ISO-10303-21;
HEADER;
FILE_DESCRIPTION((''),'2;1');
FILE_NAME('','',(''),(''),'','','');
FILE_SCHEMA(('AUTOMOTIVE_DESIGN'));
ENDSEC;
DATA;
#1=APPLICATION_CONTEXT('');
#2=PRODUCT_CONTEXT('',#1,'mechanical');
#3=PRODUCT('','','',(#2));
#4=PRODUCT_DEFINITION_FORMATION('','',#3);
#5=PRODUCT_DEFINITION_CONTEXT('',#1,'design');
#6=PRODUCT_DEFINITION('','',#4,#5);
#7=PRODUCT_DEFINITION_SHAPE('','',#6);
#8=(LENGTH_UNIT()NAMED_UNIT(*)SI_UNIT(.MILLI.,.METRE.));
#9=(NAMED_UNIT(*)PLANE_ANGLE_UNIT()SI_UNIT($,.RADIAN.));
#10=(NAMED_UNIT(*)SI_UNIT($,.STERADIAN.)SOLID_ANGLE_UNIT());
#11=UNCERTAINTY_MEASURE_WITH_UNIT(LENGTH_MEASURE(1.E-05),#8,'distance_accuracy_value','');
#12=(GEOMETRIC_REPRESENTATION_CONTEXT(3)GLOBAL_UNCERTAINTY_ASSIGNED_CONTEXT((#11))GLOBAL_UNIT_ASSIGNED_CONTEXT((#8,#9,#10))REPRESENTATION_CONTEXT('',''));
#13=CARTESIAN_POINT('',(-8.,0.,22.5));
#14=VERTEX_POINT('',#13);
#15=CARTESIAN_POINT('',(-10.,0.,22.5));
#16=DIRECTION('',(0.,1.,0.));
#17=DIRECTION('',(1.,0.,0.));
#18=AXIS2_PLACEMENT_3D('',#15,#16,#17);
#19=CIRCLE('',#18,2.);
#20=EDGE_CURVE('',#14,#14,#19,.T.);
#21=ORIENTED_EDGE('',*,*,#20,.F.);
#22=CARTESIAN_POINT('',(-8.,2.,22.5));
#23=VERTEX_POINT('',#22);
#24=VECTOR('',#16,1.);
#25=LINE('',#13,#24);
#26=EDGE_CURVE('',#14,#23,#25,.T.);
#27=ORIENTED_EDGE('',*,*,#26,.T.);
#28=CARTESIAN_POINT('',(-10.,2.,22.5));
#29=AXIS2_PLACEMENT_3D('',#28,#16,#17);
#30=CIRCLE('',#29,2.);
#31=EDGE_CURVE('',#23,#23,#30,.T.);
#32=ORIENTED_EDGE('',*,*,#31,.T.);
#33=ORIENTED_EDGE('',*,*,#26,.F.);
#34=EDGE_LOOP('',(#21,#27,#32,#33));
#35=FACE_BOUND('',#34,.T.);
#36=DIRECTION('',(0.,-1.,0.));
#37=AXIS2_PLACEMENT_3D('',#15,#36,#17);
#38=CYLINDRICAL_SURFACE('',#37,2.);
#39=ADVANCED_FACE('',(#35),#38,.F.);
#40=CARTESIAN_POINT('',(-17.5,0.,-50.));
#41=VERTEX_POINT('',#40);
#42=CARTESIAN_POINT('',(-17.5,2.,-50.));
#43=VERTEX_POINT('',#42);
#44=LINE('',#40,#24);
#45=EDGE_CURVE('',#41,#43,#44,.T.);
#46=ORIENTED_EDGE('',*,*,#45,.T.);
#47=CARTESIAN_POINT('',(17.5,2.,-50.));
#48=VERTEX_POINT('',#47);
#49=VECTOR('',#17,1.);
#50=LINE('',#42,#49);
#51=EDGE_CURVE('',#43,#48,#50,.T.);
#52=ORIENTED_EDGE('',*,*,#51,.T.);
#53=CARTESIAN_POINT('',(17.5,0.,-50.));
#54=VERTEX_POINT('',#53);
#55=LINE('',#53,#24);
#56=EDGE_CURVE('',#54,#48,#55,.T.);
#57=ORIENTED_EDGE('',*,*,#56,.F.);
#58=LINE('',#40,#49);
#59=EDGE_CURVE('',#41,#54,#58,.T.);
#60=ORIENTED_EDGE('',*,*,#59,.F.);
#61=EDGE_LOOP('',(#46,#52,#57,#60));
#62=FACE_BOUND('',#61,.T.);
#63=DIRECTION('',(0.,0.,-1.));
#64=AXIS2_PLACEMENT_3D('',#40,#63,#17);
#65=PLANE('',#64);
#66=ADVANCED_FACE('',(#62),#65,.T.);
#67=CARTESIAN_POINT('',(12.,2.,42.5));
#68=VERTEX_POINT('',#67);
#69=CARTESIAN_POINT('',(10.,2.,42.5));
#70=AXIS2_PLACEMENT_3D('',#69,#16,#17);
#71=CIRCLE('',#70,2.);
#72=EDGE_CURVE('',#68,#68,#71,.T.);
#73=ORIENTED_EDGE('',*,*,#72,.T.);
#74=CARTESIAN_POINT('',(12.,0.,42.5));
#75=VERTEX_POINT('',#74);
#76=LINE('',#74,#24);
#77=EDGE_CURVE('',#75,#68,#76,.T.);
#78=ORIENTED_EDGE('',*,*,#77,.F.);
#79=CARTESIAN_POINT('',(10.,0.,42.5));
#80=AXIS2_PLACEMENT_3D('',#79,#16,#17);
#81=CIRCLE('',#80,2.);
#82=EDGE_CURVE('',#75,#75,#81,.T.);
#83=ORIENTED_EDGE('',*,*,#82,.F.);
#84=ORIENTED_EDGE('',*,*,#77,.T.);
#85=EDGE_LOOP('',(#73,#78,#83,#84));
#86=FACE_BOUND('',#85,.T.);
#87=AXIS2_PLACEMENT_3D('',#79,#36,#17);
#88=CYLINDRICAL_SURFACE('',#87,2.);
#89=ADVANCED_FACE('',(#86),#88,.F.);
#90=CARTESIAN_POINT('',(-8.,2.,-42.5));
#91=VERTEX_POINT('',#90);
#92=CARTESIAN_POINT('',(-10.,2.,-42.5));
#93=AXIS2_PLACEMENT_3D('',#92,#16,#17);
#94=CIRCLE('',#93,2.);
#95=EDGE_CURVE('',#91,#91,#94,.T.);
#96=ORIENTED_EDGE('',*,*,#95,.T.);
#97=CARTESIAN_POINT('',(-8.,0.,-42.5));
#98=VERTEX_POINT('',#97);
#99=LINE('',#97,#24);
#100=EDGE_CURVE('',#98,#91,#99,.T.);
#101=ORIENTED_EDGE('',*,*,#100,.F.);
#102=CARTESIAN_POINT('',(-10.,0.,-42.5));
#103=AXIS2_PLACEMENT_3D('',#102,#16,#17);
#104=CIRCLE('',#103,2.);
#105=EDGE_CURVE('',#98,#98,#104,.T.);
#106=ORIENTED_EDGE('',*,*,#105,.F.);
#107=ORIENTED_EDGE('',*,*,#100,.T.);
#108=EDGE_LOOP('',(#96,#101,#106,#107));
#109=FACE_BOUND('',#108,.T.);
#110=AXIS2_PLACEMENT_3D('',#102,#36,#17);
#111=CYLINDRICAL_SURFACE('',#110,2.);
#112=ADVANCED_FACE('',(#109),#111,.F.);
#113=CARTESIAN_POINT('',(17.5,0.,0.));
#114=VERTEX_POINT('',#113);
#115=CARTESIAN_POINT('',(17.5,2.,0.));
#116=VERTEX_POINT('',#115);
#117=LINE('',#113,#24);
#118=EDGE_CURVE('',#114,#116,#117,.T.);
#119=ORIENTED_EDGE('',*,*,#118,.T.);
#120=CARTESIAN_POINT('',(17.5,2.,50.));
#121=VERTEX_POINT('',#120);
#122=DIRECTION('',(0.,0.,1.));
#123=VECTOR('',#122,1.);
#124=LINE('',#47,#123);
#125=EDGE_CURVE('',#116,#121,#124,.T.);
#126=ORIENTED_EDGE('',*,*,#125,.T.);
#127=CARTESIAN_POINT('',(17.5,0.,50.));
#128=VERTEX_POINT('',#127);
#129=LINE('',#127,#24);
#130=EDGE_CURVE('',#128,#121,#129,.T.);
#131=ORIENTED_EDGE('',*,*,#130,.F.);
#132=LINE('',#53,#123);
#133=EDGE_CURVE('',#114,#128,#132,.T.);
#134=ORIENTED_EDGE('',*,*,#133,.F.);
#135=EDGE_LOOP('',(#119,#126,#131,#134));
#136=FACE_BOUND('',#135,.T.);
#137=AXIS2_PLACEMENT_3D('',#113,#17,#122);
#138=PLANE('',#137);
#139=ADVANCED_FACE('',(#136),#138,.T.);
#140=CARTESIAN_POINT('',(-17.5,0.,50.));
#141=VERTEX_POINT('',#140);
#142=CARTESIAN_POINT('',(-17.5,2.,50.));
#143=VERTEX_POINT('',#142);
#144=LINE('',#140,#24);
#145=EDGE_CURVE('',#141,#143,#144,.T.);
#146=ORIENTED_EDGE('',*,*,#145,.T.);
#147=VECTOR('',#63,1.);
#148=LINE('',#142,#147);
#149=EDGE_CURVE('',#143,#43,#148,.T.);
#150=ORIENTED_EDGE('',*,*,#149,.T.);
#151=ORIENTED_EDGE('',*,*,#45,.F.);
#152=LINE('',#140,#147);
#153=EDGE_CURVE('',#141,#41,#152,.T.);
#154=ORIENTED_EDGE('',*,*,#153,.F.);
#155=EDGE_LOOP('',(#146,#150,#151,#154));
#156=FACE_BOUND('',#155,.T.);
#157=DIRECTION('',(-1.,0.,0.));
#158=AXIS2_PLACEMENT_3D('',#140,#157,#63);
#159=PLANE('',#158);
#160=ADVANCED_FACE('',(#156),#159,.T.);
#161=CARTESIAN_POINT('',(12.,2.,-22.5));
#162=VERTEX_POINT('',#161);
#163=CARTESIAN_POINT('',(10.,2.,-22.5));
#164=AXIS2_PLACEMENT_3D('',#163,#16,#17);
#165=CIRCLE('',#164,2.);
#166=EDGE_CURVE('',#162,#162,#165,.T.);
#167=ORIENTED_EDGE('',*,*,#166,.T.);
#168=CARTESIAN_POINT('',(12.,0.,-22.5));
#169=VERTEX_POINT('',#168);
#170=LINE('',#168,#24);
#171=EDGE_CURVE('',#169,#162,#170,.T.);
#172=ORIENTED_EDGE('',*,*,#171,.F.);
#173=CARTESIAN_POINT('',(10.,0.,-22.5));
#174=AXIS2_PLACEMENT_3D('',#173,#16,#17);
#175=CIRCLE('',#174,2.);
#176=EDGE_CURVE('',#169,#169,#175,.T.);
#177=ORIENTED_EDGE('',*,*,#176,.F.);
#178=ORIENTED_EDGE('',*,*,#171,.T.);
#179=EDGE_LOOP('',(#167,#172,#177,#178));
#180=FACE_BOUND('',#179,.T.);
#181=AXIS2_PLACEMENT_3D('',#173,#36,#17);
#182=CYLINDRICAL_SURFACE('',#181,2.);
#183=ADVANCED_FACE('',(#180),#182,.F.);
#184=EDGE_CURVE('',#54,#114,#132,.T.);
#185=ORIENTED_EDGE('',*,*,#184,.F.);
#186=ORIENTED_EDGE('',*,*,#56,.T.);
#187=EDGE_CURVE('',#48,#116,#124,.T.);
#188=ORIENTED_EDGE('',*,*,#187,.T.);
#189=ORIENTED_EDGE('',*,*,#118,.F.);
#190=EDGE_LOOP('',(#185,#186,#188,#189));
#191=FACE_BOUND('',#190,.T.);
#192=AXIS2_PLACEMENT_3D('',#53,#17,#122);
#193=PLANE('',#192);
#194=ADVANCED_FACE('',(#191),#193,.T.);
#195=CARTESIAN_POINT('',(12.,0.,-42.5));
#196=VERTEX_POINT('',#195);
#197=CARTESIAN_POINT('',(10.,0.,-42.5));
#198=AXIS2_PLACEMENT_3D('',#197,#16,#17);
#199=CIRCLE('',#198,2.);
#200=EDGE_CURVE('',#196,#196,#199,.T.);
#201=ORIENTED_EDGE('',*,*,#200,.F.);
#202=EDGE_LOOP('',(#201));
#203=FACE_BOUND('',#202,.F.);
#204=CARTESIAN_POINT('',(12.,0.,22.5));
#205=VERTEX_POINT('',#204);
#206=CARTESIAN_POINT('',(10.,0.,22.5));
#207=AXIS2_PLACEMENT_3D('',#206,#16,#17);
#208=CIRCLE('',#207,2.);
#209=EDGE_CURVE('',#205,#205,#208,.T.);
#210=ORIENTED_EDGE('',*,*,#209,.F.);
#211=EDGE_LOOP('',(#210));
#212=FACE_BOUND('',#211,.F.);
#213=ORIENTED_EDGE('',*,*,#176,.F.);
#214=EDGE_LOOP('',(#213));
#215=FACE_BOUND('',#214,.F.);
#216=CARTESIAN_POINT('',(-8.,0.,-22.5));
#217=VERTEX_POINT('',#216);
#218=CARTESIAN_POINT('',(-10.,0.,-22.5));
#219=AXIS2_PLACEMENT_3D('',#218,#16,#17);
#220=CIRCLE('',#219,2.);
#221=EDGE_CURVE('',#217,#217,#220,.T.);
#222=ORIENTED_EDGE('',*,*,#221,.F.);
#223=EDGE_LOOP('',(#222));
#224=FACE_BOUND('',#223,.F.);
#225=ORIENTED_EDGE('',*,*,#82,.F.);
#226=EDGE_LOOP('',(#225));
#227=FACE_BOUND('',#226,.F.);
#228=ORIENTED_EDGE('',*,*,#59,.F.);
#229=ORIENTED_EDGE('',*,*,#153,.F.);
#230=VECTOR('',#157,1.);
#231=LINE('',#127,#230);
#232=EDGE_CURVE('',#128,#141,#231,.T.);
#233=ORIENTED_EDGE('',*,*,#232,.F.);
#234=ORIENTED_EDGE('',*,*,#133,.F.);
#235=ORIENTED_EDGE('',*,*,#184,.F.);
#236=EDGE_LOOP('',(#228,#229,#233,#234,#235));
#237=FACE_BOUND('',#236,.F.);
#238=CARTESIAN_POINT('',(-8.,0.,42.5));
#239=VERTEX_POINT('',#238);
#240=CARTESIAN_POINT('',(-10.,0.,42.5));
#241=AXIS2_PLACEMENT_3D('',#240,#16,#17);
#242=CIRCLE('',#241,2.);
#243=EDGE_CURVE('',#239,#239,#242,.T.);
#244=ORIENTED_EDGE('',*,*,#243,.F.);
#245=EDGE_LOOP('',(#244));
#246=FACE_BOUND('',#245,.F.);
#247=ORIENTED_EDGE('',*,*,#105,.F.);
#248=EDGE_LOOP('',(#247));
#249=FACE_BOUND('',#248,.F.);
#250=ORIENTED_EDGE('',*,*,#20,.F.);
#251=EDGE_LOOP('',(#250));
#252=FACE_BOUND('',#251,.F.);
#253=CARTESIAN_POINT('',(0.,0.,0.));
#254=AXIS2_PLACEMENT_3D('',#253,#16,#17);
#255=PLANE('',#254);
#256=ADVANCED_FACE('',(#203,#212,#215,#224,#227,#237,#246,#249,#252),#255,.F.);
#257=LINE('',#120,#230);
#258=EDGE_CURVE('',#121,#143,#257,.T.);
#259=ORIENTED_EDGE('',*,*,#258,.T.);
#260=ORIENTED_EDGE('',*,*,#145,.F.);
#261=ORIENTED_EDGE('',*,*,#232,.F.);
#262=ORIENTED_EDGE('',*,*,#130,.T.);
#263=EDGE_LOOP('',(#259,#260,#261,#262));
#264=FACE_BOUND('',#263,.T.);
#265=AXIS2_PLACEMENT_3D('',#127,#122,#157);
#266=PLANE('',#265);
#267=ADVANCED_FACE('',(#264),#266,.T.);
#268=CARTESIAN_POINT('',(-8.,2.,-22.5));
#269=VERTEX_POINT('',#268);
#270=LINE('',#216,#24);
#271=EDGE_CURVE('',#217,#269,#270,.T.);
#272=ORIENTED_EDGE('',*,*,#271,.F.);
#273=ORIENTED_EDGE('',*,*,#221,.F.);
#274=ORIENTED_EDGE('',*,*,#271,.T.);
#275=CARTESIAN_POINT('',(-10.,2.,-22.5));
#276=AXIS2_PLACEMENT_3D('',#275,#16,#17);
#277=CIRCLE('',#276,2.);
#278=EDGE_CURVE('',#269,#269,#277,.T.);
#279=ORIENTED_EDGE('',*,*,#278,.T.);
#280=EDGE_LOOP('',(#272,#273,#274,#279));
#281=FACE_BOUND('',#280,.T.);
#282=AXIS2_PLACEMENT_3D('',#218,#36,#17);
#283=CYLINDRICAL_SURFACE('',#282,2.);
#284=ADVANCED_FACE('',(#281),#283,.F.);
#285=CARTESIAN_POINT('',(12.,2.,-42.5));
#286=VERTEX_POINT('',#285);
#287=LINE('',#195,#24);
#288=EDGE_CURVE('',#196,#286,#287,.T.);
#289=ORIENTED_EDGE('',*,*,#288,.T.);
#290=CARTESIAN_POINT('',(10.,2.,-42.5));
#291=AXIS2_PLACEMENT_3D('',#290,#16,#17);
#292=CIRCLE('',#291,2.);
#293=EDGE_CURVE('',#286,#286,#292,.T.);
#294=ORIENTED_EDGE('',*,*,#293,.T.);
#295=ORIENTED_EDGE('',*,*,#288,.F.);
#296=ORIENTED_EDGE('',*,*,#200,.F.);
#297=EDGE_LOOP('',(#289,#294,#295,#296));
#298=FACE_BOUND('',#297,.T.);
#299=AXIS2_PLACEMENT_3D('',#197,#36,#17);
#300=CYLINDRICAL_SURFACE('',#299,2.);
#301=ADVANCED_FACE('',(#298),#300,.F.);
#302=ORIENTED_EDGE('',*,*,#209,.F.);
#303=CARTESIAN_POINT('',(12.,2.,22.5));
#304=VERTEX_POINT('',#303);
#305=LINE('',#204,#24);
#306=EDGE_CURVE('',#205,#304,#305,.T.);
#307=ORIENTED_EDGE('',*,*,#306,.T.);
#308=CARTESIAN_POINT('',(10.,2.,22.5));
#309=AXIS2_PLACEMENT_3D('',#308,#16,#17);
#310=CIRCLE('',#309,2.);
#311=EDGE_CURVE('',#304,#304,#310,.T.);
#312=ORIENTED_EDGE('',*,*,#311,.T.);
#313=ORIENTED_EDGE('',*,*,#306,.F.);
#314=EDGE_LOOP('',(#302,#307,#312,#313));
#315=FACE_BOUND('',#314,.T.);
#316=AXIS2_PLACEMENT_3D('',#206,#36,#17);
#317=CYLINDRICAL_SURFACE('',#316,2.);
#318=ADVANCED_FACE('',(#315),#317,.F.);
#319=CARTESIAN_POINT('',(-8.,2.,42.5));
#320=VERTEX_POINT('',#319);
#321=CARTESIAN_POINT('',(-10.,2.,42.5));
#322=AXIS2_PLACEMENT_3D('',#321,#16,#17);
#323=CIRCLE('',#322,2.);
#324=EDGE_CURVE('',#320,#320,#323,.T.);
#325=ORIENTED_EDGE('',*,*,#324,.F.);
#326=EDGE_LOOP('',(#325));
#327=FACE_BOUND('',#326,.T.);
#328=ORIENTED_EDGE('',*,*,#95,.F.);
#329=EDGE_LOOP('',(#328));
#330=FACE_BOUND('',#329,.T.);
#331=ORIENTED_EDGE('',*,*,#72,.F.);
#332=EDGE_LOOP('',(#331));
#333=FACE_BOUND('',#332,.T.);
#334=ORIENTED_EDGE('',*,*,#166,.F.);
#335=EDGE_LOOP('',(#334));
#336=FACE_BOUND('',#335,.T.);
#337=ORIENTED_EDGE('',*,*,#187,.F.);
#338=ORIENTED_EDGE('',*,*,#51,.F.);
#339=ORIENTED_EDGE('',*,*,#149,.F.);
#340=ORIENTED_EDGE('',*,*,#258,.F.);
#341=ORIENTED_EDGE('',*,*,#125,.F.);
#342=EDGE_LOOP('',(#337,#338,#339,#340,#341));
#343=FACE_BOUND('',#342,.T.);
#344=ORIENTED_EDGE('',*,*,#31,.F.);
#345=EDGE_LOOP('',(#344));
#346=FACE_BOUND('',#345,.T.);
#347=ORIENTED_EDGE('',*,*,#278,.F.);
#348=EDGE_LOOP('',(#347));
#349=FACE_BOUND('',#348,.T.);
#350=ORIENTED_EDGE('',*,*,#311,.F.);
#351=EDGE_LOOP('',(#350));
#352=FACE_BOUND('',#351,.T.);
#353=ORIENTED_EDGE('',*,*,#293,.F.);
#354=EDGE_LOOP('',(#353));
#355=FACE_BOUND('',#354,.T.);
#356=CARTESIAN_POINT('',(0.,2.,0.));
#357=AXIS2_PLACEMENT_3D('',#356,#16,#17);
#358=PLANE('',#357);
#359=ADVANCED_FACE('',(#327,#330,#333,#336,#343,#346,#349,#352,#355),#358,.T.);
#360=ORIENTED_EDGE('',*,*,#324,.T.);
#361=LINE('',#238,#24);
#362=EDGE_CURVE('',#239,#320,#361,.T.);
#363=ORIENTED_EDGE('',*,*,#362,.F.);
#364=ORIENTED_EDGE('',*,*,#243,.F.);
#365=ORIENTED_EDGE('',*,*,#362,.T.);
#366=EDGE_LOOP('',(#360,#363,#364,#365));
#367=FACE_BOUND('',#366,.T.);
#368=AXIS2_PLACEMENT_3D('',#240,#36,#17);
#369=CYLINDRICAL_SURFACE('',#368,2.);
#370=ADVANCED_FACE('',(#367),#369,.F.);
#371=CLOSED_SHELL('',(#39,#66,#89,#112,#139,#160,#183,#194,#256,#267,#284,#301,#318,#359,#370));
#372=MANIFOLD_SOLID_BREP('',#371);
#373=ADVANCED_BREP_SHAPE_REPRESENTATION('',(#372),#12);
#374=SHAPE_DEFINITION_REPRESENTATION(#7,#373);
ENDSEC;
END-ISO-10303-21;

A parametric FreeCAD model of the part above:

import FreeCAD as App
import Part
import Sketcher


def add_polygon(sketch, points):
    """Adds a closed chain of lines whose ends are joined by coincident constraints."""
    first, n = sketch.GeometryCount, len(points)
    for a, b in zip(points, points[1:] + points[:1]):
        sketch.addGeometry(Part.LineSegment(App.Vector(*a, 0), App.Vector(*b, 0)), False)
    for i in range(n):
        sketch.addConstraint(Sketcher.Constraint("Coincident", first + i, 2, first + (i + 1) % n, 1))

doc = App.newDocument("Part")
params = doc.addObject("Spreadsheet::Sheet", "Params")
for row, (alias, value) in enumerate([
    ("sketch1_diameter", "4 mm"),
    ("sketch1_width", "35 mm"),
    ("sketch1_height", "100 mm"),
    ("pad1_length", "2 mm"),
], start=1):
    params.set(f"A{row}", alias)
    params.set(f"B{row}", "=" + value)
    params.setAlias(f"B{row}", alias)

body = doc.addObject("PartDesign::Body", "Body")

# Sketch on XZ plane
sketch1 = body.newObject("Sketcher::SketchObject", "Sketch")
sketch1.AttachmentSupport = (doc.getObject("XZ_Plane"), [""])
sketch1.MapMode = "FlatFace"
add_polygon(sketch1, [(17.5, -50), (-17.5, -50), (-17.5, 50), (17.5, 50)])  # lines 0-3
sketch1.addGeometry(Part.Circle(App.Vector(-10, 42.5, 0), App.Vector(0, 0, 1), 2), False)  # 4
sketch1.addGeometry(Part.Circle(App.Vector(-10, 22.5, 0), App.Vector(0, 0, 1), 2), False)  # 5
sketch1.addGeometry(Part.Circle(App.Vector(10, 42.5, 0), App.Vector(0, 0, 1), 2), False)  # 6
sketch1.addGeometry(Part.Circle(App.Vector(10, 22.5, 0), App.Vector(0, 0, 1), 2), False)  # 7
sketch1.addGeometry(Part.Circle(App.Vector(-10, -22.5, 0), App.Vector(0, 0, 1), 2), False)  # 8
sketch1.addGeometry(Part.Circle(App.Vector(-10, -42.5, 0), App.Vector(0, 0, 1), 2), False)  # 9
sketch1.addGeometry(Part.Circle(App.Vector(10, -22.5, 0), App.Vector(0, 0, 1), 2), False)  # 10
sketch1.addGeometry(Part.Circle(App.Vector(10, -42.5, 0), App.Vector(0, 0, 1), 2), False)  # 11
sketch1.addConstraint([
    Sketcher.Constraint("Horizontal", 0),
    Sketcher.Constraint("Vertical", 1),
    Sketcher.Constraint("Horizontal", 2),
    Sketcher.Constraint("Vertical", 3),
    Sketcher.Constraint("Equal", 4, 5),
    Sketcher.Constraint("Equal", 5, 6),
    Sketcher.Constraint("Equal", 6, 7),
    Sketcher.Constraint("Equal", 7, 8),
    Sketcher.Constraint("Equal", 8, 9),
    Sketcher.Constraint("Equal", 9, 10),
    Sketcher.Constraint("Equal", 10, 11),
    Sketcher.Constraint("Symmetric", 7, 3, 8, 3, -1, 1),
    Sketcher.Constraint("Symmetric", 6, 3, 9, 3, -1, 1),
    Sketcher.Constraint("Symmetric", 5, 3, 10, 3, -1, 1),
    Sketcher.Constraint("Symmetric", 4, 3, 11, 3, -1, 1),
    Sketcher.Constraint("Symmetric", 0, 2, 2, 2, -1, 1),
    Sketcher.Constraint("Symmetric", 4, 3, 6, 3, -2),
    Sketcher.Constraint("Symmetric", 5, 3, 7, 3, -2),
    Sketcher.Constraint("Vertical", 4, 3, 5, 3),
    Sketcher.Constraint("Diameter", 4, 4.0),
    Sketcher.Constraint("DistanceX", 0, 2, 0, 1, 35.0),
    Sketcher.Constraint("DistanceY", 1, 1, 1, 2, 100.0),
    Sketcher.Constraint("DistanceY", 5, 3, 4, 3, 20.0),
    Sketcher.Constraint("DistanceX", 4, 3, 6, 3, 20.0),
    Sketcher.Constraint("DistanceY", 0, 2, 9, 3, 7.5),
])
sketch1.setExpression("Constraints[23]", "Params.sketch1_diameter")
sketch1.setExpression("Constraints[24]", "Params.sketch1_width")
sketch1.setExpression("Constraints[25]", "Params.sketch1_height")
pad1 = body.newObject("PartDesign::Pad", "Pad")
pad1.Profile = sketch1
pad1.setExpression("Length", "Params.pad1_length")
pad1.Reversed = True

doc.recompute()
